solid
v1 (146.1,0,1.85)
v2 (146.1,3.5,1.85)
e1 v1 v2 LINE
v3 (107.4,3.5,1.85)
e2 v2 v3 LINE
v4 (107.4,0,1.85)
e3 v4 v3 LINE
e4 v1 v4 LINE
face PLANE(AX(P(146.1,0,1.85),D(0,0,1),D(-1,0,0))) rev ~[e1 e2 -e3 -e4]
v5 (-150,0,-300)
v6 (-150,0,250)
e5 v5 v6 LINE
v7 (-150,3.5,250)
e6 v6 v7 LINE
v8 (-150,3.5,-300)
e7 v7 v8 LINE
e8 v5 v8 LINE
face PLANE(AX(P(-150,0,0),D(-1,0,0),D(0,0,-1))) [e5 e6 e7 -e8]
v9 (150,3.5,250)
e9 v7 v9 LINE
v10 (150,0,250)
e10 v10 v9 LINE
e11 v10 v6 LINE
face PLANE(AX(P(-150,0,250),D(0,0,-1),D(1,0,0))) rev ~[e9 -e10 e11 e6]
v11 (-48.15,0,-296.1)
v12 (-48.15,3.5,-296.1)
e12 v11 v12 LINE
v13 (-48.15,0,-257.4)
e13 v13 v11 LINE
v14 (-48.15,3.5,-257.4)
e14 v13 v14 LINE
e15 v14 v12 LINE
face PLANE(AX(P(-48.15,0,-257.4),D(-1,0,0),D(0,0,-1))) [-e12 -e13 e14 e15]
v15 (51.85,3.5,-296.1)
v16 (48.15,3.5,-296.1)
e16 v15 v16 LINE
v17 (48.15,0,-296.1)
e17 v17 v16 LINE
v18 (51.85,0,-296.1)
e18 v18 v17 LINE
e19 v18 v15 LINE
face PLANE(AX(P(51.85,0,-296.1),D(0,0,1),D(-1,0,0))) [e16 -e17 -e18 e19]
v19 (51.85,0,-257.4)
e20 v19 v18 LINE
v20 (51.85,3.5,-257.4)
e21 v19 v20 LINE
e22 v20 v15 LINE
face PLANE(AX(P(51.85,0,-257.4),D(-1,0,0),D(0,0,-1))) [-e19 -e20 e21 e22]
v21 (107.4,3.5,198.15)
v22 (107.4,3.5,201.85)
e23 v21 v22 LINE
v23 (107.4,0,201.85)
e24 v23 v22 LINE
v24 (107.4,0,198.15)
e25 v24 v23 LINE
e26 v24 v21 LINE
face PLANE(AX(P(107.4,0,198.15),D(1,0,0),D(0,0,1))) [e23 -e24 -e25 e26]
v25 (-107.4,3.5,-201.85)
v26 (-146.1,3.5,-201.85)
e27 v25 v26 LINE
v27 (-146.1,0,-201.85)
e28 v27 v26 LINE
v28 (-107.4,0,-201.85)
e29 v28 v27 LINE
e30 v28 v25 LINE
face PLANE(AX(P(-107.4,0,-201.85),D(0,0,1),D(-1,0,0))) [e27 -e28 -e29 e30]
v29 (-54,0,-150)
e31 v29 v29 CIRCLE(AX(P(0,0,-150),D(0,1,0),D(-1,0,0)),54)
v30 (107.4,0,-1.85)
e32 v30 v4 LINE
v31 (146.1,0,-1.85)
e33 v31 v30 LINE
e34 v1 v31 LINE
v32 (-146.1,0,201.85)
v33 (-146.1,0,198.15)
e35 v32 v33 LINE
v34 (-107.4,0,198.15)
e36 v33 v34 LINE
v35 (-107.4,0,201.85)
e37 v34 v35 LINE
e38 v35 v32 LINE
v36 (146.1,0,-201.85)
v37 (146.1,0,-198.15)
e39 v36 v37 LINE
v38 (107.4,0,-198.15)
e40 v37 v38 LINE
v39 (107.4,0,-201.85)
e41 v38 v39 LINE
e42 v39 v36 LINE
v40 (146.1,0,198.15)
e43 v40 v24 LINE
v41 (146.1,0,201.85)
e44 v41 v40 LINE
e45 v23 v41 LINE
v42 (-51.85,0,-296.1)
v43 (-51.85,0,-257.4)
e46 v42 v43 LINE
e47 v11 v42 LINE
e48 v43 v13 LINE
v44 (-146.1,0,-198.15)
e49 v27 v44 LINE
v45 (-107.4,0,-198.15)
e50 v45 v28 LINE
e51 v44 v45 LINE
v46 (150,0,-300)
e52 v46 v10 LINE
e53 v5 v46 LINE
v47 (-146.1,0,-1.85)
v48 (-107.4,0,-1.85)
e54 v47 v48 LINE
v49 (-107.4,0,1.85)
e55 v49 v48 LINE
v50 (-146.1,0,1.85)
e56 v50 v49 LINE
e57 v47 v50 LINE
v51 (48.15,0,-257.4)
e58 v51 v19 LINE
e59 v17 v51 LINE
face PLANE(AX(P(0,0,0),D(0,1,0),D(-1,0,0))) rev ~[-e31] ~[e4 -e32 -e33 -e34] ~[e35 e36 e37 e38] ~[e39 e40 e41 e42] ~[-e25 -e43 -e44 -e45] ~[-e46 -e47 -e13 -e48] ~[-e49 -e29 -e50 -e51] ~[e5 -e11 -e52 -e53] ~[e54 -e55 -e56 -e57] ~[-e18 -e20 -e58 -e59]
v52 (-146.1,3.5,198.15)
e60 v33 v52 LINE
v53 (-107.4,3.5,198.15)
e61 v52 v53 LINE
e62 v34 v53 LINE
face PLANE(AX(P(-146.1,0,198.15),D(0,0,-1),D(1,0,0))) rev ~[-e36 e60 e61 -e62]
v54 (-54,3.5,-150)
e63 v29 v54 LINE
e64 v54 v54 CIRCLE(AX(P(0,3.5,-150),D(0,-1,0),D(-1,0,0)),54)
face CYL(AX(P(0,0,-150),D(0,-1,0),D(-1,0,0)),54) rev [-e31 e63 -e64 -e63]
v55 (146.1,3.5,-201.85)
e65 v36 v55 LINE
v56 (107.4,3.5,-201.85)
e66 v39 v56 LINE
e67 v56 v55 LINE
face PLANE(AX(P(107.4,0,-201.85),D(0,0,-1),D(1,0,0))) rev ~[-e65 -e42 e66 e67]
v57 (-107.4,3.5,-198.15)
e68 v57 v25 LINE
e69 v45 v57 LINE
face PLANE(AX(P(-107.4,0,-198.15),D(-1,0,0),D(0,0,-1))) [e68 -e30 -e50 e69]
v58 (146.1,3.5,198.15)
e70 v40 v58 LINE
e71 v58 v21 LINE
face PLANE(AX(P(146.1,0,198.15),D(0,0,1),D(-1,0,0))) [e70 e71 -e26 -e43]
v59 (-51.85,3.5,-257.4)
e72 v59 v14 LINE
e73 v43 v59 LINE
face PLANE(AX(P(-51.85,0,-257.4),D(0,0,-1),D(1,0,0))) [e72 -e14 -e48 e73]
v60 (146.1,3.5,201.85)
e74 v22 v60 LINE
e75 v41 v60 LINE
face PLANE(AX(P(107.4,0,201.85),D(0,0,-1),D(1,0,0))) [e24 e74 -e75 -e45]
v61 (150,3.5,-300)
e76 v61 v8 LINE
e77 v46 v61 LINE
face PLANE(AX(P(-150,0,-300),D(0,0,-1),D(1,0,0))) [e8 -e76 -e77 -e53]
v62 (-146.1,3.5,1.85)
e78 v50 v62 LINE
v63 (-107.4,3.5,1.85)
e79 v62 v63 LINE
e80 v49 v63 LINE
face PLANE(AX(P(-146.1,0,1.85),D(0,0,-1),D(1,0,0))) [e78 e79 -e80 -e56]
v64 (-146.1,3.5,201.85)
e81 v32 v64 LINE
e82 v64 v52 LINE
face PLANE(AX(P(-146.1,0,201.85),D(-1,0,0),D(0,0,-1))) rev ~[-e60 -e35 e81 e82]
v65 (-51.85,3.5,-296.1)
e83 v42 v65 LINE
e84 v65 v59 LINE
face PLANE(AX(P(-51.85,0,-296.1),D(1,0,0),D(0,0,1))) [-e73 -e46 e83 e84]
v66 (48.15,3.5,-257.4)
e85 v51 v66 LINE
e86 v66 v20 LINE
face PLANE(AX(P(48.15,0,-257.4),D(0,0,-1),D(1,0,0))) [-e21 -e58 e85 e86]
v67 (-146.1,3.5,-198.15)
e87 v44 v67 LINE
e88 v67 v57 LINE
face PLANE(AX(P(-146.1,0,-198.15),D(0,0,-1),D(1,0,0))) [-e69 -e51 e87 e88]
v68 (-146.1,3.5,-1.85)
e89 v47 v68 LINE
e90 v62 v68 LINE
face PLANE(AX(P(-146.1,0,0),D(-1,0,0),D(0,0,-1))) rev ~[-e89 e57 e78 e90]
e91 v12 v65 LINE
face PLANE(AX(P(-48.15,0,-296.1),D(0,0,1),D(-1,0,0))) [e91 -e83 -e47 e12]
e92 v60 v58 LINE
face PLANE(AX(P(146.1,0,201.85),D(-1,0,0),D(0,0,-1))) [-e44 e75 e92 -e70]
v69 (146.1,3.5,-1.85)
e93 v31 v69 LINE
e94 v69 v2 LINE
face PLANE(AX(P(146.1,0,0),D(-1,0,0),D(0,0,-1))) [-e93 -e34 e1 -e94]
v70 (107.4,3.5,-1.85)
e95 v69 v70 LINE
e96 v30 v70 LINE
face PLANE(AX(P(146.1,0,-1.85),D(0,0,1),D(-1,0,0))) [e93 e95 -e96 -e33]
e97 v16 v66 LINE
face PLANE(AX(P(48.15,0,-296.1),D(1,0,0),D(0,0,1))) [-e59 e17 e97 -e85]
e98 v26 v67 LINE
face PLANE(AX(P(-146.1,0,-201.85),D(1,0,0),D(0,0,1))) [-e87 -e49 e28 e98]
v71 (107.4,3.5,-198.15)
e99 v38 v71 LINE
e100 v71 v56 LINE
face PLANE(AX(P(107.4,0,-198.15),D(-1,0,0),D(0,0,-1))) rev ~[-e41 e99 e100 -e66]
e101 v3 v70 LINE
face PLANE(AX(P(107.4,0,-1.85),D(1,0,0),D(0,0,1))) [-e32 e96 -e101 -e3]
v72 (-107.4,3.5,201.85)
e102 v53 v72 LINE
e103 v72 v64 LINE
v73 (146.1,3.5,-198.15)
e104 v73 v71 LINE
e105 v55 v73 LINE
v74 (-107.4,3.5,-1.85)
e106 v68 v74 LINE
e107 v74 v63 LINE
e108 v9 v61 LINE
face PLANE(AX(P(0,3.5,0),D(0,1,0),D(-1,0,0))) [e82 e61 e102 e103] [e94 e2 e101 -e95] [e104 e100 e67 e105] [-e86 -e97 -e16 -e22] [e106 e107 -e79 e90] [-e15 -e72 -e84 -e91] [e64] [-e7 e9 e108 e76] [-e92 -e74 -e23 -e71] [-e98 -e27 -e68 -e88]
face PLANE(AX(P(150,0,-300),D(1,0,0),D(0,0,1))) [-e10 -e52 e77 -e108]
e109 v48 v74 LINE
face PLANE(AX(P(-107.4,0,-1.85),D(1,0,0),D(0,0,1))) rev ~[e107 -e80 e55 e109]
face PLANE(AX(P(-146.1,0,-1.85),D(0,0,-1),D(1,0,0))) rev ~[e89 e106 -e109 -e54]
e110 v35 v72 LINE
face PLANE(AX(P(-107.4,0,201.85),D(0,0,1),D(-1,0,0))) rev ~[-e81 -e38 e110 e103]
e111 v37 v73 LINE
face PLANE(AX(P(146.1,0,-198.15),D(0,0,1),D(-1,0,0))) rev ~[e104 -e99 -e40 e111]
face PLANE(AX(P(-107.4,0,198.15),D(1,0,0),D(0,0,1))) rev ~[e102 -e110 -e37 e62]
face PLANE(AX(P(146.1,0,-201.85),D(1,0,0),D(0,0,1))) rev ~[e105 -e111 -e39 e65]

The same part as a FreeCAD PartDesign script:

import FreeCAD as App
import Part
import Sketcher
from FreeCAD import Vector
Q = App.Units.Quantity

doc = App.newDocument("Part")
body = doc.addObject("PartDesign::Body", "Body")

# Sketch on XZ plane
sketch1 = body.newObject("Sketcher::SketchObject", "Sketch")
sketch1.AttachmentSupport = (doc.getObject("XZ_Plane"), [""])
sketch1.MapMode = "FlatFace"
sketch1.addGeometry(Part.LineSegment(Vector(-150, 250, 0), Vector(150, 250, 0)), False)
sketch1.addGeometry(Part.LineSegment(Vector(150, 250, 0), Vector(150, -300, 0)), False)
sketch1.addGeometry(Part.LineSegment(Vector(150, -300, 0), Vector(-150, -300, 0)), False)
sketch1.addGeometry(Part.LineSegment(Vector(-150, -300, 0), Vector(-150, 250, 0)), False)
sketch1.addGeometry(Part.Circle(Vector(0, -150, 0), Vector(0, 0, 1), 54), False)
sketch1.addGeometry(Part.LineSegment(Vector(-107.4, -1.9, 0), Vector(-107.4, 1.9, 0)), False)
sketch1.addGeometry(Part.LineSegment(Vector(-107.4, 1.9, 0), Vector(-146.1, 1.9, 0)), False)
sketch1.addGeometry(Part.LineSegment(Vector(-146.1, 1.9, 0), Vector(-146.1, -1.9, 0)), False)
sketch1.addGeometry(Part.LineSegment(Vector(-146.1, -1.9, 0), Vector(-107.4, -1.9, 0)), False)
sketch1.addGeometry(Part.LineSegment(Vector(-48.1, -257.4, 0), Vector(-51.9, -257.4, 0)), False)
sketch1.addGeometry(Part.LineSegment(Vector(-51.9, -257.4, 0), Vector(-51.9, -296.1, 0)), False)
sketch1.addGeometry(Part.LineSegment(Vector(-51.9, -296.1, 0), Vector(-48.1, -296.1, 0)), False)
sketch1.addGeometry(Part.LineSegment(Vector(-48.1, -296.1, 0), Vector(-48.1, -257.4, 0)), False)
sketch1.addGeometry(Part.LineSegment(Vector(-107.4, -201.8, 0), Vector(-107.4, -198.2, 0)), False)
sketch1.addGeometry(Part.LineSegment(Vector(-107.4, -198.2, 0), Vector(-146.1, -198.2, 0)), False)
sketch1.addGeometry(Part.LineSegment(Vector(-146.1, -198.2, 0), Vector(-146.1, -201.8, 0)), False)
sketch1.addGeometry(Part.LineSegment(Vector(-146.1, -201.8, 0), Vector(-107.4, -201.8, 0)), False)
sketch1.addGeometry(Part.LineSegment(Vector(146.1, -1.9, 0), Vector(146.1, 1.9, 0)), False)
sketch1.addGeometry(Part.LineSegment(Vector(146.1, 1.9, 0), Vector(107.4, 1.9, 0)), False)
sketch1.addGeometry(Part.LineSegment(Vector(107.4, 1.9, 0), Vector(107.4, -1.9, 0)), False)
sketch1.addGeometry(Part.LineSegment(Vector(107.4, -1.9, 0), Vector(146.1, -1.9, 0)), False)
sketch1.addGeometry(Part.LineSegment(Vector(48.1, -296.1, 0), Vector(51.9, -296.1, 0)), False)
sketch1.addGeometry(Part.LineSegment(Vector(51.9, -296.1, 0), Vector(51.9, -257.4, 0)), False)
sketch1.addGeometry(Part.LineSegment(Vector(51.9, -257.4, 0), Vector(48.1, -257.4, 0)), False)
sketch1.addGeometry(Part.LineSegment(Vector(48.1, -257.4, 0), Vector(48.1, -296.1, 0)), False)
sketch1.addGeometry(Part.LineSegment(Vector(146.1, -201.8, 0), Vector(146.1, -198.2, 0)), False)
sketch1.addGeometry(Part.LineSegment(Vector(146.1, -198.2, 0), Vector(107.4, -198.2, 0)), False)
sketch1.addGeometry(Part.LineSegment(Vector(107.4, -198.2, 0), Vector(107.4, -201.8, 0)), False)
sketch1.addGeometry(Part.LineSegment(Vector(107.4, -201.8, 0), Vector(146.1, -201.8, 0)), False)
sketch1.addGeometry(Part.LineSegment(Vector(-107.4, 198.2, 0), Vector(-107.4, 201.8, 0)), False)
sketch1.addGeometry(Part.LineSegment(Vector(-107.4, 201.8, 0), Vector(-146.1, 201.8, 0)), False)
sketch1.addGeometry(Part.LineSegment(Vector(-146.1, 201.8, 0), Vector(-146.1, 198.2, 0)), False)
sketch1.addGeometry(Part.LineSegment(Vector(-146.1, 198.2, 0), Vector(-107.4, 198.2, 0)), False)
sketch1.addGeometry(Part.LineSegment(Vector(107.4, 201.8, 0), Vector(107.4, 198.2, 0)), False)
sketch1.addGeometry(Part.LineSegment(Vector(107.4, 198.2, 0), Vector(146.1, 198.2, 0)), False)
sketch1.addGeometry(Part.LineSegment(Vector(146.1, 198.2, 0), Vector(146.1, 201.8, 0)), False)
sketch1.addGeometry(Part.LineSegment(Vector(146.1, 201.8, 0), Vector(107.4, 201.8, 0)), False)
sketch1.addConstraint(Sketcher.Constraint("Coincident", 0, 2, 1, 1))
sketch1.addConstraint(Sketcher.Constraint("Coincident", 1, 2, 2, 1))
sketch1.addConstraint(Sketcher.Constraint("Coincident", 2, 2, 3, 1))
sketch1.addConstraint(Sketcher.Constraint("Coincident", 3, 2, 0, 1))
sketch1.addConstraint(Sketcher.Constraint("Coincident", 5, 2, 6, 1))
sketch1.addConstraint(Sketcher.Constraint("Coincident", 6, 2, 7, 1))
sketch1.addConstraint(Sketcher.Constraint("Coincident", 7, 2, 8, 1))
sketch1.addConstraint(Sketcher.Constraint("Coincident", 8, 2, 5, 1))
sketch1.addConstraint(Sketcher.Constraint("Coincident", 9, 2, 10, 1))
sketch1.addConstraint(Sketcher.Constraint("Coincident", 10, 2, 11, 1))
sketch1.addConstraint(Sketcher.Constraint("Coincident", 11, 2, 12, 1))
sketch1.addConstraint(Sketcher.Constraint("Coincident", 12, 2, 9, 1))
sketch1.addConstraint(Sketcher.Constraint("Coincident", 13, 2, 14, 1))
sketch1.addConstraint(Sketcher.Constraint("Coincident", 14, 2, 15, 1))
sketch1.addConstraint(Sketcher.Constraint("Coincident", 15, 2, 16, 1))
sketch1.addConstraint(Sketcher.Constraint("Coincident", 16, 2, 13, 1))
sketch1.addConstraint(Sketcher.Constraint("Coincident", 17, 2, 18, 1))
sketch1.addConstraint(Sketcher.Constraint("Coincident", 18, 2, 19, 1))
sketch1.addConstraint(Sketcher.Constraint("Coincident", 19, 2, 20, 1))
sketch1.addConstraint(Sketcher.Constraint("Coincident", 20, 2, 17, 1))
sketch1.addConstraint(Sketcher.Constraint("Coincident", 21, 2, 22, 1))
sketch1.addConstraint(Sketcher.Constraint("Coincident", 22, 2, 23, 1))
sketch1.addConstraint(Sketcher.Constraint("Coincident", 23, 2, 24, 1))
sketch1.addConstraint(Sketcher.Constraint("Coincident", 24, 2, 21, 1))
sketch1.addConstraint(Sketcher.Constraint("Coincident", 25, 2, 26, 1))
sketch1.addConstraint(Sketcher.Constraint("Coincident", 26, 2, 27, 1))
sketch1.addConstraint(Sketcher.Constraint("Coincident", 27, 2, 28, 1))
sketch1.addConstraint(Sketcher.Constraint("Coincident", 28, 2, 25, 1))
sketch1.addConstraint(Sketcher.Constraint("Coincident", 29, 2, 30, 1))
sketch1.addConstraint(Sketcher.Constraint("Coincident", 30, 2, 31, 1))
sketch1.addConstraint(Sketcher.Constraint("Coincident", 31, 2, 32, 1))
sketch1.addConstraint(Sketcher.Constraint("Coincident", 32, 2, 29, 1))
sketch1.addConstraint(Sketcher.Constraint("Coincident", 33, 2, 34, 1))
sketch1.addConstraint(Sketcher.Constraint("Coincident", 34, 2, 35, 1))
sketch1.addConstraint(Sketcher.Constraint("Coincident", 35, 2, 36, 1))
sketch1.addConstraint(Sketcher.Constraint("Coincident", 36, 2, 33, 1))
sketch1.addConstraint(Sketcher.Constraint("Horizontal", 0))
sketch1.addConstraint(Sketcher.Constraint("Vertical", 1))
sketch1.addConstraint(Sketcher.Constraint("Horizontal", 2))
sketch1.addConstraint(Sketcher.Constraint("Vertical", 3))
sketch1.addConstraint(Sketcher.Constraint("Vertical", 5))
sketch1.addConstraint(Sketcher.Constraint("Horizontal", 6))
sketch1.addConstraint(Sketcher.Constraint("Vertical", 7))
sketch1.addConstraint(Sketcher.Constraint("Horizontal", 8))
sketch1.addConstraint(Sketcher.Constraint("Horizontal", 9))
sketch1.addConstraint(Sketcher.Constraint("Vertical", 10))
sketch1.addConstraint(Sketcher.Constraint("Horizontal", 11))
sketch1.addConstraint(Sketcher.Constraint("Vertical", 12))
sketch1.addConstraint(Sketcher.Constraint("Vertical", 13))
sketch1.addConstraint(Sketcher.Constraint("Horizontal", 14))
sketch1.addConstraint(Sketcher.Constraint("Vertical", 15))
sketch1.addConstraint(Sketcher.Constraint("Horizontal", 16))
sketch1.addConstraint(Sketcher.Constraint("Vertical", 17))
sketch1.addConstraint(Sketcher.Constraint("Horizontal", 18))
sketch1.addConstraint(Sketcher.Constraint("Vertical", 19))
sketch1.addConstraint(Sketcher.Constraint("Horizontal", 20))
sketch1.addConstraint(Sketcher.Constraint("Horizontal", 21))
sketch1.addConstraint(Sketcher.Constraint("Vertical", 22))
sketch1.addConstraint(Sketcher.Constraint("Horizontal", 23))
sketch1.addConstraint(Sketcher.Constraint("Vertical", 24))
sketch1.addConstraint(Sketcher.Constraint("Vertical", 25))
sketch1.addConstraint(Sketcher.Constraint("Horizontal", 26))
sketch1.addConstraint(Sketcher.Constraint("Vertical", 27))
sketch1.addConstraint(Sketcher.Constraint("Horizontal", 28))
sketch1.addConstraint(Sketcher.Constraint("Vertical", 29))
sketch1.addConstraint(Sketcher.Constraint("Horizontal", 30))
sketch1.addConstraint(Sketcher.Constraint("Vertical", 31))
sketch1.addConstraint(Sketcher.Constraint("Horizontal", 32))
sketch1.addConstraint(Sketcher.Constraint("Vertical", 33))
sketch1.addConstraint(Sketcher.Constraint("Horizontal", 34))
sketch1.addConstraint(Sketcher.Constraint("Vertical", 35))
sketch1.addConstraint(Sketcher.Constraint("Horizontal", 36))
sketch1.addConstraint(Sketcher.Constraint("Symmetric", 7, 2, 17, 2, -1, 1))
sketch1.addConstraint(Sketcher.Constraint("Symmetric", 5, 2, 19, 2, -1, 1))
sketch1.addConstraint(Sketcher.Constraint("Symmetric", 27, 2, 29, 2, -1, 1))
sketch1.addConstraint(Sketcher.Constraint("Symmetric", 25, 2, 31, 2, -1, 1))
sketch1.addConstraint(Sketcher.Constraint("Symmetric", 13, 2, 33, 2, -1, 1))
sketch1.addConstraint(Sketcher.Constraint("Symmetric", 15, 2, 35, 2, -1, 1))
sketch1.addConstraint(Sketcher.Constraint("Symmetric", 10, 2, 21, 2, -2))
sketch1.addConstraint(Sketcher.Constraint("Symmetric", 12, 2, 23, 2, -2))
sketch1.addConstraint(Sketcher.Constraint("Symmetric", 14, 2, 25, 2, -2))
sketch1.addConstraint(Sketcher.Constraint("Symmetric", 16, 2, 27, 2, -2))
sketch1.addConstraint(Sketcher.Constraint("PointOnObject", 4, 3, -2))
sketch1.addConstraint(Sketcher.Constraint("Horizontal", 6, 2, 17, 2))
sketch1.addConstraint(Sketcher.Constraint("Vertical", 8, 2, 13, 2))
sketch1.addConstraint(Sketcher.Constraint("Vertical", 7, 2, 14, 2))
sketch1.addConstraint(Sketcher.Constraint("Equal", 23, 5))
sketch1.addConstraint(Sketcher.Constraint("Equal", 36, 10))
sketch1.addConstraint(Sketcher.Constraint("Equal", 7, 13))
sketch1.addConstraint(Sketcher.Constraint("Diameter", 4, Q("108 mm")))
sketch1.addConstraint(Sketcher.Constraint("DistanceX", 6, 2, 6, 1, Q("38.7 mm")))
sketch1.addConstraint(Sketcher.Constraint("DistanceX", 9, 2, 9, 1, Q("3.7 mm")))
sketch1.addConstraint(Sketcher.Constraint("DistanceY", 4, 3, -1, 1, Q("150 mm")))
sketch1.addConstraint(Sketcher.Constraint("DistanceX", -1, 1, 0, 2, Q("150 mm")))
sketch1.addConstraint(Sketcher.Constraint("DistanceY", -1, 1, 0, 2, Q("250 mm")))
sketch1.addConstraint(Sketcher.Constraint("DistanceX", 2, 2, -1, 1, Q("150 mm")))
sketch1.addConstraint(Sketcher.Constraint("DistanceY", 1, 2, 4, 3, Q("150 mm")))
sketch1.addConstraint(Sketcher.Constraint("DistanceX", 11, 2, 21, 2, Q("100 mm")))
sketch1.addConstraint(Sketcher.Constraint("DistanceY", 2, 2, 15, 2, Q("98.15 mm")))
sketch1.addConstraint(Sketcher.Constraint("DistanceX", 5, 2, -1, 1, Q("107.4 mm")))
sketch1.addConstraint(Sketcher.Constraint("DistanceY", 9, 2, -1, 1, Q("257.4 mm")))
pad1 = body.newObject("PartDesign::Pad", "Pad")
pad1.Profile = sketch1
pad1.Length = 3.5
pad1.Reversed = True

doc.recompute()
